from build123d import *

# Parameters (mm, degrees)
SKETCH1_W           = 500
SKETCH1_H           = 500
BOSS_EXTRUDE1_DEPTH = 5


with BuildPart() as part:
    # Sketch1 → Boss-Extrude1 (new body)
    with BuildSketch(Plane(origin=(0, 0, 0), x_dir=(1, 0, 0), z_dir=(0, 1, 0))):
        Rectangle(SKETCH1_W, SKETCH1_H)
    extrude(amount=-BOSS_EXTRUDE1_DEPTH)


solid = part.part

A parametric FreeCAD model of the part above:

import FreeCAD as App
import Part
import Sketcher

V = App.Vector


def add_polygon(sketch, points):
    """Adds a closed chain of lines whose ends are joined by coincident constraints."""
    first, n = sketch.GeometryCount, len(points)
    for a, b in zip(points, points[1:] + points[:1]):
        sketch.addGeometry(Part.LineSegment(App.Vector(*a, 0), App.Vector(*b, 0)), False)
    for i in range(n):
        sketch.addConstraint(Sketcher.Constraint("Coincident", first + i, 2, first + (i + 1) % n, 1))

doc = App.newDocument("Part")
params = doc.addObject("Spreadsheet::Sheet", "Params")
for row, (alias, value) in enumerate([
    ("sketch1_width", "500 mm"),
    ("pad1_length", "5 mm"),
], start=1):
    params.set(f"A{row}", alias)
    params.set(f"B{row}", "=" + value)
    params.setAlias(f"B{row}", alias)

body = doc.addObject("PartDesign::Body", "Body")

sketch1 = doc.addObject("Sketcher::SketchObject", "Sketch")
body.addObject(sketch1)
sketch1.AttachmentSupport = (doc.XZ_Plane, [""])
sketch1.MapMode = "FlatFace"
add_polygon(sketch1, [(-250, -250), (-250, 250), (250, 250), (250, -250)])
sketch1.addConstraint([
    Sketcher.Constraint("Vertical", 0),
    Sketcher.Constraint("Horizontal", 1),
    Sketcher.Constraint("Vertical", 2),
    Sketcher.Constraint("Horizontal", 3),
    Sketcher.Constraint("Symmetric", 0, 2, 2, 2, -1, 1),
    Sketcher.Constraint("Equal", 3, 0),
    Sketcher.Constraint("DistanceX", 1, 1, 1, 2, 500.0),
])
sketch1.setExpression("Constraints[10]", "Params.sketch1_width")
pad1 = doc.addObject("PartDesign::Pad", "Pad")
body.addObject(pad1)
pad1.Profile = sketch1
pad1.setExpression("Length", "Params.pad1_length")

doc.recompute()
